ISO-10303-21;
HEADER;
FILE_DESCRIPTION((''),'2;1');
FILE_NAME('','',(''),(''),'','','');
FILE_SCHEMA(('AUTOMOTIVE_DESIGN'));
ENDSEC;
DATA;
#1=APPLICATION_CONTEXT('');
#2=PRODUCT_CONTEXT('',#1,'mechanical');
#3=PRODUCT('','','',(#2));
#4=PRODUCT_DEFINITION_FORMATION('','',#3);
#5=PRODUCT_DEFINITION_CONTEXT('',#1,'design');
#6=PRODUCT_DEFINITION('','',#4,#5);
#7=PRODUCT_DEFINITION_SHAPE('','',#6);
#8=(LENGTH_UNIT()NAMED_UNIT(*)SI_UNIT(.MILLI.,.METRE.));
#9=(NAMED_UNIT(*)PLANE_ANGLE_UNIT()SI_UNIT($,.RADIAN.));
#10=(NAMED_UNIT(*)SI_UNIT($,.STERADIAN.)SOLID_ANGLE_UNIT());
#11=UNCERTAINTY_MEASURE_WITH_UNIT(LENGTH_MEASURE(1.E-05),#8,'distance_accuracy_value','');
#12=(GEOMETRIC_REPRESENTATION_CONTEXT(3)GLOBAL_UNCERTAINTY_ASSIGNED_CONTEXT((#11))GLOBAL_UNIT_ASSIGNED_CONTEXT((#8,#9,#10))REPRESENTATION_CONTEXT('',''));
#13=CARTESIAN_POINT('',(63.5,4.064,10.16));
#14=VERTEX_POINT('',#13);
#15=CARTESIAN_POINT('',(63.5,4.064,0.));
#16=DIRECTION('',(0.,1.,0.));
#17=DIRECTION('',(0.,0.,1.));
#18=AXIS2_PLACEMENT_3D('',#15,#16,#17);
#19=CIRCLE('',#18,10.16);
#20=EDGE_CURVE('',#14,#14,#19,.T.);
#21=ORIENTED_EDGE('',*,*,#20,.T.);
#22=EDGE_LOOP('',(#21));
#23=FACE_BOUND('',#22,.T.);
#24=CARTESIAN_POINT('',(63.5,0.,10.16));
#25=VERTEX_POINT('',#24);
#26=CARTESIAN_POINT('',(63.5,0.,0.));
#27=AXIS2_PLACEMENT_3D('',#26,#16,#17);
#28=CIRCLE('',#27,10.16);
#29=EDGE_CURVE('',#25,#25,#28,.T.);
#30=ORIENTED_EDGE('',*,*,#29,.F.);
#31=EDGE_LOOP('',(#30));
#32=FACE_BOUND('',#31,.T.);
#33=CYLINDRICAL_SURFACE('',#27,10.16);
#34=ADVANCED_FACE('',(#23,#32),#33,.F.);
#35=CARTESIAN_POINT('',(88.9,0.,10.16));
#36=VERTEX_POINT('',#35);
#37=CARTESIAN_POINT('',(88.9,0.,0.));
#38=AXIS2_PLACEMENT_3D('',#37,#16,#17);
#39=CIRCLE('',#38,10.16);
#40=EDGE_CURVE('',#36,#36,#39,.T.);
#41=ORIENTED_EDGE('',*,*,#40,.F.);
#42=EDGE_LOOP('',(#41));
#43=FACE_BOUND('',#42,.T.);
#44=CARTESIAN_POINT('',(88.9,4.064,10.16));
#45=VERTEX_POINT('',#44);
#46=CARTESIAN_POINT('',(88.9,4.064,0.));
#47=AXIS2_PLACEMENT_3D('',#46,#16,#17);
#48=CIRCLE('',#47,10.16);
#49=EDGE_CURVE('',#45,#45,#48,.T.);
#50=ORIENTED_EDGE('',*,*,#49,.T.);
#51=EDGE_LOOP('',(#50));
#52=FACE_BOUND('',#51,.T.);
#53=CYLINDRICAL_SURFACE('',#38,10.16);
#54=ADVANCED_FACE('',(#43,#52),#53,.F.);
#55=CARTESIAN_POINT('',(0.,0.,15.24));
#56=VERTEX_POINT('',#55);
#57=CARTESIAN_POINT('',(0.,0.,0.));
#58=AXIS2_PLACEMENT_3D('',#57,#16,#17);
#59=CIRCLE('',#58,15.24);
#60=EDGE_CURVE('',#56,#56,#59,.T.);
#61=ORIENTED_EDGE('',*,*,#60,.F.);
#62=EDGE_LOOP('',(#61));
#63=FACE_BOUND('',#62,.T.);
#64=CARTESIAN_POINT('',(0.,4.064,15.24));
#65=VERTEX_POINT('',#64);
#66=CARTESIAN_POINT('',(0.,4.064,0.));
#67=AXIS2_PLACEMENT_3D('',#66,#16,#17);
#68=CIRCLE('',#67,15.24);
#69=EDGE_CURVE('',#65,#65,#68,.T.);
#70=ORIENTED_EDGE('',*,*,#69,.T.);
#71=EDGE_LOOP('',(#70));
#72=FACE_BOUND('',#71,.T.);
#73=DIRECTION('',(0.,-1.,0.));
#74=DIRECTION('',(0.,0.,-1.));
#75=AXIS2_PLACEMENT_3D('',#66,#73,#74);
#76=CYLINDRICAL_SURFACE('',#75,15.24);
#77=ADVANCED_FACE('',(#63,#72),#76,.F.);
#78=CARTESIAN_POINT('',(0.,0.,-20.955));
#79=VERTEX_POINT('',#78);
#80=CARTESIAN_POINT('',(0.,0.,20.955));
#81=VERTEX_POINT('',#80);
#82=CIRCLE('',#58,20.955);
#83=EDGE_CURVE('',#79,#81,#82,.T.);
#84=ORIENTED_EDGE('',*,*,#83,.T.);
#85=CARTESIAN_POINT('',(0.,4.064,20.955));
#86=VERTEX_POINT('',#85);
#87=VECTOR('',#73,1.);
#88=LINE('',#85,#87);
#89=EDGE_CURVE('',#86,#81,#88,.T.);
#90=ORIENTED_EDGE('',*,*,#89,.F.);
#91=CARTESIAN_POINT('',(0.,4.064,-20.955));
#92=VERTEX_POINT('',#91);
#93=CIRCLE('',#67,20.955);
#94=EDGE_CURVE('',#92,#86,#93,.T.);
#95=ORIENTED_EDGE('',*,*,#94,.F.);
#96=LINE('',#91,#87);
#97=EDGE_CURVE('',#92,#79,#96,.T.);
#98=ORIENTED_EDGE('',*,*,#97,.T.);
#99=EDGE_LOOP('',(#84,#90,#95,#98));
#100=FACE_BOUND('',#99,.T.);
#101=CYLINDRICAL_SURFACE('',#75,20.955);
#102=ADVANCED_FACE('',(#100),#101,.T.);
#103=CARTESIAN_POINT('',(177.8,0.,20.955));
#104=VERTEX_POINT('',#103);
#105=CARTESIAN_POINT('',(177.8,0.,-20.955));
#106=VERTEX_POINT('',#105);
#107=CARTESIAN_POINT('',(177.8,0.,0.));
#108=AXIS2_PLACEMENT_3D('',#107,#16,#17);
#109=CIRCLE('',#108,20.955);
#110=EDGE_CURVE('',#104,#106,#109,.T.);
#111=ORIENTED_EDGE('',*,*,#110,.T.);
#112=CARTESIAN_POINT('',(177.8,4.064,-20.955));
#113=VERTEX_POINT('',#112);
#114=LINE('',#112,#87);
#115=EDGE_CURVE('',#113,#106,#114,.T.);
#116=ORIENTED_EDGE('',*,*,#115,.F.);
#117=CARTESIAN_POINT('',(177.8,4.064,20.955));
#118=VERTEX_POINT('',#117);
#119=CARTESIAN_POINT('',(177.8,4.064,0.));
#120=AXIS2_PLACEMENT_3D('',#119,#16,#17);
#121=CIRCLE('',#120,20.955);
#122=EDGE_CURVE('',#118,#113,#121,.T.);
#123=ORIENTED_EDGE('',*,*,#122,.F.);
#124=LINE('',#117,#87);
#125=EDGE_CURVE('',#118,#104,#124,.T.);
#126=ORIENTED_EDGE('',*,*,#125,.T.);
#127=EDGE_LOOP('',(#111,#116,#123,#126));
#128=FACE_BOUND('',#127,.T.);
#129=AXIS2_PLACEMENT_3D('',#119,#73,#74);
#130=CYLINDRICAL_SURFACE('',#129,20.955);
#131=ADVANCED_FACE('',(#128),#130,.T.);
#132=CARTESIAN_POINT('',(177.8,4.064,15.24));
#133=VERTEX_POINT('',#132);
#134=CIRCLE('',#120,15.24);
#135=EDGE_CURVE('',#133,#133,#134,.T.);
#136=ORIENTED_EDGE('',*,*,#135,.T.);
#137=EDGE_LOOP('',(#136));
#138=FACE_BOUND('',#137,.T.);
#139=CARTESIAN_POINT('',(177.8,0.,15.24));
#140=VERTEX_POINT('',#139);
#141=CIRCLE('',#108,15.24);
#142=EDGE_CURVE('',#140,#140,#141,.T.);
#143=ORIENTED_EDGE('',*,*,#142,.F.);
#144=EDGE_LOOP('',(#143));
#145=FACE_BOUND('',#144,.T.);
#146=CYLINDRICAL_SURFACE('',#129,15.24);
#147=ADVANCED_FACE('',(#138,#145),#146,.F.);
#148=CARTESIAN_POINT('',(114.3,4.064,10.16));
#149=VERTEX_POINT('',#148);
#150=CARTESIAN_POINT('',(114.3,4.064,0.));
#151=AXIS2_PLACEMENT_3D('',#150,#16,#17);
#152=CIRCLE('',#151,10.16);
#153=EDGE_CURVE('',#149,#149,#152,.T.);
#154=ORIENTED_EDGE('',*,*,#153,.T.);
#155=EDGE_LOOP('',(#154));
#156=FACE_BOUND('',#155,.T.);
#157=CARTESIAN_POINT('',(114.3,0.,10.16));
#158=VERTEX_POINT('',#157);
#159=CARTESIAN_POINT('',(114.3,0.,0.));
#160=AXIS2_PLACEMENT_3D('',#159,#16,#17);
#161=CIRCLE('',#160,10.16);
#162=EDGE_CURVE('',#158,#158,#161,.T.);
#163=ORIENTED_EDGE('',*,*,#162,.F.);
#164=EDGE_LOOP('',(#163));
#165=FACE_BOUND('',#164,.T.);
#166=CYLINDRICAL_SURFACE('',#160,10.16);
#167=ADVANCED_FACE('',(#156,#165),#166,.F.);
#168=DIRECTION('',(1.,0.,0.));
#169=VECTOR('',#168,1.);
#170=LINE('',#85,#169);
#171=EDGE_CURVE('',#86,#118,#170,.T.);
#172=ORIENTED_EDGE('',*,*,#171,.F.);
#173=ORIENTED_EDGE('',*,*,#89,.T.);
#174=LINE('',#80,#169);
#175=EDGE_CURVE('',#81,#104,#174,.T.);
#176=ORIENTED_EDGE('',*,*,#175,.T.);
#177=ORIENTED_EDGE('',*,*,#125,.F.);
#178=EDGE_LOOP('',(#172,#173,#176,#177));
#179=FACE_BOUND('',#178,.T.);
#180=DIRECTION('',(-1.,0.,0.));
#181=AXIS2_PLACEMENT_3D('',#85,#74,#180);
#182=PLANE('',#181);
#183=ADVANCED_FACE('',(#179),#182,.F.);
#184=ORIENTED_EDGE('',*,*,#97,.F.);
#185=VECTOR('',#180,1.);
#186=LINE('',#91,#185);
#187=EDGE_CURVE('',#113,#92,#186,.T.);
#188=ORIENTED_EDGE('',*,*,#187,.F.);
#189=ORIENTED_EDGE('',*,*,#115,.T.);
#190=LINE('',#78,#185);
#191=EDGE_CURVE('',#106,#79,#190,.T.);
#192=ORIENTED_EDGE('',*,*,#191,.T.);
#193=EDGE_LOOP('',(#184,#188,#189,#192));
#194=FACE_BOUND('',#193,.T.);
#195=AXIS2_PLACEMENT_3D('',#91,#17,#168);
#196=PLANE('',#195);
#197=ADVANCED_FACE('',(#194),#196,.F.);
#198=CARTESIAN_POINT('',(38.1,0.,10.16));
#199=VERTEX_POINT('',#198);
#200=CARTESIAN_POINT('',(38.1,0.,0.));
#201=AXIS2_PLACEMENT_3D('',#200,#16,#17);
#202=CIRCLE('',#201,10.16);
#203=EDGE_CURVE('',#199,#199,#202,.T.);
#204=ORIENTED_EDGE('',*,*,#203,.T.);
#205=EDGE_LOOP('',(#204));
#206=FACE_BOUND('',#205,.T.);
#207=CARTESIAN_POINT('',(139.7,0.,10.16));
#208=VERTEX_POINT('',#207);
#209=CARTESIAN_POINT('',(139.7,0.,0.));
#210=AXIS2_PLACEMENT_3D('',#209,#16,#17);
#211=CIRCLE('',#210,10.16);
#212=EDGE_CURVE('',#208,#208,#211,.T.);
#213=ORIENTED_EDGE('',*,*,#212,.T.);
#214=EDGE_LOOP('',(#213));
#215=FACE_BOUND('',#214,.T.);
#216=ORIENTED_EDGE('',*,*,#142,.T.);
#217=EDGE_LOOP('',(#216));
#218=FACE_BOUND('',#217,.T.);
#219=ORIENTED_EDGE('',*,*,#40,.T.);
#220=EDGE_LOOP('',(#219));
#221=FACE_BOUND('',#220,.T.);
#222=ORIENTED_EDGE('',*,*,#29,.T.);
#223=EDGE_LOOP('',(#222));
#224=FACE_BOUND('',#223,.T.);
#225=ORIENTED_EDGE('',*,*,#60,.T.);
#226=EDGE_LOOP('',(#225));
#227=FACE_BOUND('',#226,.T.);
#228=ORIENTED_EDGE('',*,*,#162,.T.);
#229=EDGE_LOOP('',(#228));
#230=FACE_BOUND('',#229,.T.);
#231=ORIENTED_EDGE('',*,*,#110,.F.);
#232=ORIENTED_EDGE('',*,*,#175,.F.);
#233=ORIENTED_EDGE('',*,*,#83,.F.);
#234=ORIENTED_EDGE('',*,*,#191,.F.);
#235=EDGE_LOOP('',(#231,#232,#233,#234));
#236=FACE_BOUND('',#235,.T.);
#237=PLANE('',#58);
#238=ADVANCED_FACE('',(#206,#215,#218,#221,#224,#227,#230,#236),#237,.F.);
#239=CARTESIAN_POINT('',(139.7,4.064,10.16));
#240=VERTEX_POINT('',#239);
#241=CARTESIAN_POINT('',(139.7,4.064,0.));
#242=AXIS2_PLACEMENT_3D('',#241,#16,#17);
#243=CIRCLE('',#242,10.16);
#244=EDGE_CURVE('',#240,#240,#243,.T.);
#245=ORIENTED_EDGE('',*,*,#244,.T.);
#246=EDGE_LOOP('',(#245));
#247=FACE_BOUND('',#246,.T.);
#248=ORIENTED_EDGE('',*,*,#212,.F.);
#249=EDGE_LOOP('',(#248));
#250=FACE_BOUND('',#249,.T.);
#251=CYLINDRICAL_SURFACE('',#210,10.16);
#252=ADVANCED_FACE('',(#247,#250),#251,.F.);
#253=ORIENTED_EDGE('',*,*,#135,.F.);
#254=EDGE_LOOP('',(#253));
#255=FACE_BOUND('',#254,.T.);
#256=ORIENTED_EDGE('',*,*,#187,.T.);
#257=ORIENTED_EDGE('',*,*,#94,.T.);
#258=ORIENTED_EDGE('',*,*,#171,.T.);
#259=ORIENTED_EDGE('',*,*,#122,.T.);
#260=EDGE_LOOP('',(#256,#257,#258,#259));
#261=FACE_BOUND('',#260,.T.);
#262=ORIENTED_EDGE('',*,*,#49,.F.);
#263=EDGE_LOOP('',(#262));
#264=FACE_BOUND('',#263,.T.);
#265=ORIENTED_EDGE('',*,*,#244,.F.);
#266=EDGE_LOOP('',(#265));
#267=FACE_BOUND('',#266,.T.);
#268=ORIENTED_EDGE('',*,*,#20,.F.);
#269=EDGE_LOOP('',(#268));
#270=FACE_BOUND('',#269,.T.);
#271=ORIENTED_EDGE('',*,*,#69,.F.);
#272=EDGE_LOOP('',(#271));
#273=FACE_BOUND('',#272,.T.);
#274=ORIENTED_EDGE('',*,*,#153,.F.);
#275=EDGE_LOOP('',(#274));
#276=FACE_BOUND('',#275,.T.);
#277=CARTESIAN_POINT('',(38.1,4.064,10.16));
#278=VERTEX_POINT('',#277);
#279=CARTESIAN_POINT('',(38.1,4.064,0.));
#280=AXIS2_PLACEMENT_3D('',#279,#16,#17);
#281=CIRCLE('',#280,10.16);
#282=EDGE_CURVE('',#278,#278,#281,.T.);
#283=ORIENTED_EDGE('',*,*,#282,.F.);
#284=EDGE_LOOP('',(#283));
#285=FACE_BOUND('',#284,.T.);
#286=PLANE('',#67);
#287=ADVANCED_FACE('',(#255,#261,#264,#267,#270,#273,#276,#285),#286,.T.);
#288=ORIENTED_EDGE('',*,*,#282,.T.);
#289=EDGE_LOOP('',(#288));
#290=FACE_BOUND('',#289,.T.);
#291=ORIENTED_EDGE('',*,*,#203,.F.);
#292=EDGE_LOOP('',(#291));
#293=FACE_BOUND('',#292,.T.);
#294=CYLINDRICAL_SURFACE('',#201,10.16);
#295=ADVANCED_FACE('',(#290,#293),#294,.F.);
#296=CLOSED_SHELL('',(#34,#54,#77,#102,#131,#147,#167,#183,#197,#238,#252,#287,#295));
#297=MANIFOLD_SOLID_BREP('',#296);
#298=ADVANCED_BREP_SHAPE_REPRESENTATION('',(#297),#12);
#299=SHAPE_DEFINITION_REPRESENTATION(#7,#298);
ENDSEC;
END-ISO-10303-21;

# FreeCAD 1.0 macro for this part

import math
import FreeCAD as App
import Part
import Sketcher

V = App.Vector
Q = App.Units.Quantity

doc = App.newDocument("Part")
params = doc.addObject("Spreadsheet::Sheet", "Params")
for row, (alias, value) in enumerate([
    ("sketch1_diameter", "1.2 in"),
    ("sketch1_width", "7 in"),
    ("sketch1_radius", "0.825 in"),
    ("pad1_length", "0.16 in"),
    ("sketch2_diameter", "0.8 in"),
    ("linearpattern_pitch", "1 in"),
], start=1):
    params.set(f"A{row}", alias)
    params.set(f"B{row}", "=" + value)
    params.setAlias(f"B{row}", alias)

body = doc.addObject("PartDesign::Body", "Body")

sketch1 = body.newObject("Sketcher::SketchObject", "Sketch")
sketch1.AttachmentSupport = (doc.getObject("XZ_Plane"), [""])
sketch1.MapMode = "FlatFace"
sketch1.addGeometry(Part.LineSegment(V(178, -21, 0), V(0, -21, 0)), False)
sketch1.addGeometry(Part.ArcOfCircle(Part.Circle(V(0, 0, 0), V(0, 0, 1), 21), math.radians(90), math.radians(270)), False)
sketch1.addGeometry(Part.LineSegment(V(0, 21, 0), V(178, 21, 0)), False)
sketch1.addGeometry(Part.ArcOfCircle(Part.Circle(V(178, 0, 0), V(0, 0, 1), 21), math.radians(-90), math.radians(90)), False)
sketch1.addGeometry(Part.Circle(V(178, 0, 0), V(0, 0, 1), 15), False)
sketch1.addGeometry(Part.Circle(V(0, 0, 0), V(0, 0, 1), 15), False)
sketch1.addConstraint(Sketcher.Constraint("Tangent", 0, 2, 1, 2))
sketch1.addConstraint(Sketcher.Constraint("Tangent", 1, 1, 2, 1))
sketch1.addConstraint(Sketcher.Constraint("Tangent", 2, 2, 3, 2))
sketch1.addConstraint(Sketcher.Constraint("Tangent", 3, 1, 0, 1))
sketch1.addConstraint(Sketcher.Constraint("Horizontal", 0))
sketch1.addConstraint(Sketcher.Constraint("Horizontal", 2))
sketch1.addConstraint(Sketcher.Constraint("Coincident", 1, 3, -1, 1))
sketch1.addConstraint(Sketcher.Constraint("Coincident", 5, 3, -1, 1))
sketch1.addConstraint(Sketcher.Constraint("Coincident", 4, 3, 3, 3))
sketch1.addConstraint(Sketcher.Constraint("Equal", 4, 5))
sketch1.addConstraint(Sketcher.Constraint("Diameter", 4, Q("1.2 in")))
sketch1.addConstraint(Sketcher.Constraint("DistanceX", 0, 2, 0, 1, Q("7 in")))
sketch1.addConstraint(Sketcher.Constraint("Radius", 1, Q("0.825 in")))
sketch1.setExpression("Constraints[10]", "Params.sketch1_diameter")
sketch1.setExpression("Constraints[11]", "Params.sketch1_width")
sketch1.setExpression("Constraints[12]", "Params.sketch1_radius")
pad1 = body.newObject("PartDesign::Pad", "Pad")
pad1.Profile = sketch1
pad1.setExpression("Length", "Params.pad1_length")
pad1.Reversed = True

sketch2 = body.newObject("Sketcher::SketchObject", "Sketch001")
sketch2.AttachmentSupport = (doc.getObject("XZ_Plane"), [""])
sketch2.MapMode = "FlatFace"
sketch2.AttachmentOffset = App.Placement(V(0, 0, -0.16 * 25.4), App.Rotation())
sketch2.addGeometry(Part.Circle(V(38, 0, 0), V(0, 0, 1), 10), False)
sketch2.addConstraint(Sketcher.Constraint("PointOnObject", 0, 3, -1))
sketch2.addConstraint(Sketcher.Constraint("Diameter", 0, Q("0.8 in")))
sketch2.addConstraint(Sketcher.Constraint("DistanceX", -1, 1, 0, 3, Q("1.5 in")))
sketch2.setExpression("Constraints[1]", "Params.sketch2_diameter")
pocket1 = body.newObject("PartDesign::Pocket", "Pocket")
pocket1.Profile = sketch2
pocket1.Type = "ThroughAll"
pocket1.Reversed = True
doc.recompute()

linearpattern = body.newObject("PartDesign::LinearPattern", "LinearPattern")
linearpattern.Originals = [pocket1]
linearpattern.Direction = (doc.getObject("X_Axis"), [""])
linearpattern.Mode = "offset"
linearpattern.setExpression("Offset", "Params.linearpattern_pitch")
linearpattern.Occurrences = 5
body.Tip = linearpattern

doc.recompute()
